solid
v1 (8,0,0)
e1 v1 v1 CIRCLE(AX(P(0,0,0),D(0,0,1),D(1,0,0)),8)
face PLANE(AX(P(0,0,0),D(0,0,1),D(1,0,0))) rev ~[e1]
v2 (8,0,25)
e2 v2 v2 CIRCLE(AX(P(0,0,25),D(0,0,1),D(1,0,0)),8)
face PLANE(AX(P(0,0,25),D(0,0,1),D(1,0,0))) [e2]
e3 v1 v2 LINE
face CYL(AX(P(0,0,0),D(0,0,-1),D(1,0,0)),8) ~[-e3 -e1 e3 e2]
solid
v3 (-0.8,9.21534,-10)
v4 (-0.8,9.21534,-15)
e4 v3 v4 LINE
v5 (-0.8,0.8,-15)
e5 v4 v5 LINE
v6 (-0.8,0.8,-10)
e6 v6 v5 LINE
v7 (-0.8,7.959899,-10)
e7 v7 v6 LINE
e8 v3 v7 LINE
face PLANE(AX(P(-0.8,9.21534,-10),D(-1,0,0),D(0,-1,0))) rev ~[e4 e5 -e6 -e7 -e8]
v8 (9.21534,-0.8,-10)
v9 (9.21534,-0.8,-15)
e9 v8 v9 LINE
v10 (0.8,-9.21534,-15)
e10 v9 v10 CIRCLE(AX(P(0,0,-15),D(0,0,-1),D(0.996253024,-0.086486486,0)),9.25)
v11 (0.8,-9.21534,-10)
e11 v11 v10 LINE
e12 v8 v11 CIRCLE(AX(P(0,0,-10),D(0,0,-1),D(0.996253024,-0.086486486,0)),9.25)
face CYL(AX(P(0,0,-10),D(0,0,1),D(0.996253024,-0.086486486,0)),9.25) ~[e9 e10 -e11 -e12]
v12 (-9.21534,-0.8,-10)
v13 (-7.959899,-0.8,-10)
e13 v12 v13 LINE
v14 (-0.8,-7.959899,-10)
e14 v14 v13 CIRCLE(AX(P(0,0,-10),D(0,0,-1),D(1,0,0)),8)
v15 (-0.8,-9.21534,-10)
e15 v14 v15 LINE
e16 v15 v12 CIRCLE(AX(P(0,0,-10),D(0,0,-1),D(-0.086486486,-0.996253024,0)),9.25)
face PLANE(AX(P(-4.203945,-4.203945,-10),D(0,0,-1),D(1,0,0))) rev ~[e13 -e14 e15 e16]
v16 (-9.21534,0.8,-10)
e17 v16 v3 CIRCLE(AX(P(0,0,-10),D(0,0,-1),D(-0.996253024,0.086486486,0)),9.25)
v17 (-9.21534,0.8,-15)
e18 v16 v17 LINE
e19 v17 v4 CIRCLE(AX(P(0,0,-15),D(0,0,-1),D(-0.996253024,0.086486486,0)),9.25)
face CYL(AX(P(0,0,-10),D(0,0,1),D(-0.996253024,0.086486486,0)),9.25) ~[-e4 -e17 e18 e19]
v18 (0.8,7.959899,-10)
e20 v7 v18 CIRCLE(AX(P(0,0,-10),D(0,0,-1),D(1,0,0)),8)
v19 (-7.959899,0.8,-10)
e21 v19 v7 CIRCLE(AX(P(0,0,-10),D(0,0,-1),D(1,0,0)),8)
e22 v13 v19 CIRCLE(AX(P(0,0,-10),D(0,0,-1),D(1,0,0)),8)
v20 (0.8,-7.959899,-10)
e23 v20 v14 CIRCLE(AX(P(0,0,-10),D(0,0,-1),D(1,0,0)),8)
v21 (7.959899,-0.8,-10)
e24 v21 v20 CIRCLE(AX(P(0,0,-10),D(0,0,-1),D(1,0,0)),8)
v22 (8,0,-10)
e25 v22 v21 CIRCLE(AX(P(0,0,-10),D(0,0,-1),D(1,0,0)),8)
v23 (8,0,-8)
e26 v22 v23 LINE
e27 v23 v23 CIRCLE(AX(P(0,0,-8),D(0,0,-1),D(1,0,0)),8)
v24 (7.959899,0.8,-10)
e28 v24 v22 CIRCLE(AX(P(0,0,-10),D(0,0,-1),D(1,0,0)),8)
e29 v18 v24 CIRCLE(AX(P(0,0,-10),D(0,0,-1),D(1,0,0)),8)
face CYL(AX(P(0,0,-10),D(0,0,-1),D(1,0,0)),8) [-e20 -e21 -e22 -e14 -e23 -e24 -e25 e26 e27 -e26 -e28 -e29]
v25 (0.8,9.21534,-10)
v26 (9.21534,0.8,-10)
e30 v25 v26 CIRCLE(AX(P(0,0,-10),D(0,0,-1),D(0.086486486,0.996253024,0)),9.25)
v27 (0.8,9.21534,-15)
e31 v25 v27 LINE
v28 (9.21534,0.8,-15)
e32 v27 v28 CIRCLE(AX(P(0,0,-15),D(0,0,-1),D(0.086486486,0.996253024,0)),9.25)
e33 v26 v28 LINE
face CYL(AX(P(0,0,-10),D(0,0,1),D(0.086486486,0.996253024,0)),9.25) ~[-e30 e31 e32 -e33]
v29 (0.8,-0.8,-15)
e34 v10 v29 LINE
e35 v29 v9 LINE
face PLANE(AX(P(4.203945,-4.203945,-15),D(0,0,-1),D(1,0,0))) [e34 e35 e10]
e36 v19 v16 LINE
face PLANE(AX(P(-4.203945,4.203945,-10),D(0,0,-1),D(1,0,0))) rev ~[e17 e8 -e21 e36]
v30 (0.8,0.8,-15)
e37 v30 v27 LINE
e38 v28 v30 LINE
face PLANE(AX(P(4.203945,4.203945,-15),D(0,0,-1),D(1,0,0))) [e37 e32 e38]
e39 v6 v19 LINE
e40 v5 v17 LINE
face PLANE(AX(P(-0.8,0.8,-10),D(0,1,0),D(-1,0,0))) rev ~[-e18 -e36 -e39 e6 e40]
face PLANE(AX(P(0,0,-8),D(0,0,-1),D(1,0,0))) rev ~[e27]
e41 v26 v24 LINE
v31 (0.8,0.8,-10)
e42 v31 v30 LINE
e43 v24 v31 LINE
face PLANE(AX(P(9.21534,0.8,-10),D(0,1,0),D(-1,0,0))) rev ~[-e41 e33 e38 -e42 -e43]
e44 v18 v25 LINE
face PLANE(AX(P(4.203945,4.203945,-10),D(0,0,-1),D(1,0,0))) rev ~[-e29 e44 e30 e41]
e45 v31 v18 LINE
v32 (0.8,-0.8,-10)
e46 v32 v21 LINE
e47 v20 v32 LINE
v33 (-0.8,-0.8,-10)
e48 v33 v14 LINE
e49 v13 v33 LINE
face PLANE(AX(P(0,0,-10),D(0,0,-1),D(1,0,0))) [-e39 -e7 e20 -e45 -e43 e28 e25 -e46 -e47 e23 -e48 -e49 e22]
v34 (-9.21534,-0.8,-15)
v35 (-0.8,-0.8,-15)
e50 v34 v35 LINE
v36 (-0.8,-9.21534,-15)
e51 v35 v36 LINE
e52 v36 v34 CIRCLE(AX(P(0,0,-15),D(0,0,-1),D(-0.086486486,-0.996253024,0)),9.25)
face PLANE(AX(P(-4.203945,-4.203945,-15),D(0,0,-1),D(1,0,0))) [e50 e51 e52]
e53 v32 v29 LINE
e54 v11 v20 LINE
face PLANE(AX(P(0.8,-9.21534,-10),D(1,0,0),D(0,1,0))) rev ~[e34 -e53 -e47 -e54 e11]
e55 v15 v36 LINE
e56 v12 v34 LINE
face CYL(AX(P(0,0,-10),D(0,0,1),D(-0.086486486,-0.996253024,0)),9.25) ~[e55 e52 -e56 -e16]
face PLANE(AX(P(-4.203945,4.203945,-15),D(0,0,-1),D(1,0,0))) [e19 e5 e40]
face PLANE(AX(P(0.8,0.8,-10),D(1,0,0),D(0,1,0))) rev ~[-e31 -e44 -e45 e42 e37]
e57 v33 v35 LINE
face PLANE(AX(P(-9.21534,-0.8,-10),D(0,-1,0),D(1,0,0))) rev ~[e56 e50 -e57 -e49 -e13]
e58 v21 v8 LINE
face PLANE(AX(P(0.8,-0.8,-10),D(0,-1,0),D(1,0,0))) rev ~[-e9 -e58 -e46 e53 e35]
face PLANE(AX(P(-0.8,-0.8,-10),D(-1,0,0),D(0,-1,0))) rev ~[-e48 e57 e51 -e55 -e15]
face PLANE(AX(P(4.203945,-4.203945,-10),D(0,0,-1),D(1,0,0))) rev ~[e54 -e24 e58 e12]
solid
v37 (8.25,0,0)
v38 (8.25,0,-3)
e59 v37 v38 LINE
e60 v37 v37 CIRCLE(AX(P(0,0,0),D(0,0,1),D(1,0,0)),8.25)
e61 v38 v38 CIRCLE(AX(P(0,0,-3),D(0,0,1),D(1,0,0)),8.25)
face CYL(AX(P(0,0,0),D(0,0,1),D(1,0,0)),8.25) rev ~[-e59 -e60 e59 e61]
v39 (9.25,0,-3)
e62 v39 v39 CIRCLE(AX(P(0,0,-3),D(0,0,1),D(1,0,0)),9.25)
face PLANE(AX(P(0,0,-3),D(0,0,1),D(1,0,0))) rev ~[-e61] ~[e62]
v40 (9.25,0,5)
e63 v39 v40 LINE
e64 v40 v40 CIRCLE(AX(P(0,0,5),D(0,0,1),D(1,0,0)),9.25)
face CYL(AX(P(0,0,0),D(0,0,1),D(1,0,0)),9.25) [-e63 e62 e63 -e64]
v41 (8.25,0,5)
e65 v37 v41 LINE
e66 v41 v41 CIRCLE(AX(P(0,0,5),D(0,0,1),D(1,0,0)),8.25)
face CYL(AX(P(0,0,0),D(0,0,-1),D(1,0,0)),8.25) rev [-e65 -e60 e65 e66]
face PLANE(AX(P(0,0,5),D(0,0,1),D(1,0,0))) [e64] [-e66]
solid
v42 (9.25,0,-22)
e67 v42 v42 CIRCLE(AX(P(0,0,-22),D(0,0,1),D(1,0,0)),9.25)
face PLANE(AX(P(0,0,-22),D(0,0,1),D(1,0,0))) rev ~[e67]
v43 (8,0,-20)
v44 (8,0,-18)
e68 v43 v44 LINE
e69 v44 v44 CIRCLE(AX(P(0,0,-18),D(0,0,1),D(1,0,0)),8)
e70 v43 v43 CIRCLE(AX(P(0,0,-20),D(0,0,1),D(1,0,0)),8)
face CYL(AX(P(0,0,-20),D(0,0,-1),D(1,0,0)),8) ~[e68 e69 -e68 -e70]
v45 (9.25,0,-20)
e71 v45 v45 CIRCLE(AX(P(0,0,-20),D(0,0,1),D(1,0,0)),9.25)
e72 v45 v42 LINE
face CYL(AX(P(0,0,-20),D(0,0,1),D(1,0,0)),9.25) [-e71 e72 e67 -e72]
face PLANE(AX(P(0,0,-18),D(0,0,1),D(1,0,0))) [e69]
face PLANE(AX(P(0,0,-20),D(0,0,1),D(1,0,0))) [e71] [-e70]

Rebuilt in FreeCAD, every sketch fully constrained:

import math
import FreeCAD as App
import Part
import Sketcher
Q = App.Units.Quantity

doc = App.newDocument("Part")
params = doc.addObject("Spreadsheet::Sheet", "Params")
for row, (alias, value) in enumerate([
    ("sketch1_diameter", "16 mm"),
    ("pad1_length", "25 mm"),
    ("sketch2_diameter", "18.5 mm"),
    ("sketch2_diameter2", "16.5 mm"),
    ("pad2_length", "5 mm"),
    ("pad2_length2", "3 mm"),
    ("sketch3_diameter", "16 mm"),
    ("pad3_length", "2 mm"),
    ("sketch4_radius", "9.25 mm"),
    ("pad4_length", "5 mm"),
    ("sketch5_diameter", "16 mm"),
    ("pad5_length", "2 mm"),
    ("sketch6_diameter", "18.5 mm"),
    ("pad6_length", "2 mm"),
], start=1):
    params.set(f"A{row}", alias)
    params.set(f"B{row}", "=" + value)
    params.setAlias(f"B{row}", alias)

body = doc.addObject("PartDesign::Body", "Body")

# Sketch on XY plane
sketch1 = body.newObject("Sketcher::SketchObject", "Sketch")
sketch1.AttachmentSupport = (doc.getObject("XY_Plane"), [""])
sketch1.MapMode = "FlatFace"
sketch1.addGeometry(Part.Circle(App.Vector(0, 0, 0), App.Vector(0, 0, 1), 8), False)
sketch1.addConstraint([
    Sketcher.Constraint("Coincident", 0, 3, -1, 1),
    Sketcher.Constraint("Diameter", 0, Q("16 mm")),
])
sketch1.setExpression("Constraints[1]", "Params.sketch1_diameter")
pad1 = body.newObject("PartDesign::Pad", "Pad")
pad1.Profile = sketch1
pad1.setExpression("Length", "Params.pad1_length")
body2 = doc.addObject("PartDesign::Body", "Body001")

# Sketch on XY plane
sketch2 = body2.newObject("Sketcher::SketchObject", "Sketch001")
sketch2.AttachmentSupport = (doc.getObject("XY_Plane001"), [""])
sketch2.MapMode = "FlatFace"
sketch2.addGeometry([
    Part.Circle(App.Vector(0, 0, 0), App.Vector(0, 0, 1), 9.25),
    Part.Circle(App.Vector(0, 0, 0), App.Vector(0, 0, 1), 8.25),
], False)
sketch2.addConstraint([
    Sketcher.Constraint("Coincident", 0, 3, -1, 1),
    Sketcher.Constraint("Coincident", 1, 3, -1, 1),
    Sketcher.Constraint("Diameter", 0, Q("18.5 mm")),
    Sketcher.Constraint("Diameter", 1, Q("16.5 mm")),
])
sketch2.setExpression("Constraints[2]", "Params.sketch2_diameter")
sketch2.setExpression("Constraints[3]", "Params.sketch2_diameter2")
pad2 = body2.newObject("PartDesign::Pad", "Pad001")
pad2.Profile = sketch2
pad2.Type = "TwoLengths"
pad2.setExpression("Length", "Params.pad2_length")
pad2.setExpression("Length2", "Params.pad2_length2")
body3 = doc.addObject("PartDesign::Body", "Body002")

# Sketch on XY plane
sketch3 = body3.newObject("Sketcher::SketchObject", "Sketch002")
sketch3.AttachmentSupport = (doc.getObject("XY_Plane002"), [""])
sketch3.MapMode = "FlatFace"
sketch3.AttachmentOffset = App.Placement(App.Vector(0, 0, -10), App.Rotation())
sketch3.addGeometry(Part.Circle(App.Vector(0, 0, 0), App.Vector(0, 0, 1), 8), False)
sketch3.addConstraint([
    Sketcher.Constraint("Coincident", 0, 3, -1, 1),
    Sketcher.Constraint("Diameter", 0, Q("16 mm")),
])
sketch3.setExpression("Constraints[1]", "Params.sketch3_diameter")
pad3 = body3.newObject("PartDesign::Pad", "Pad002")
pad3.Profile = sketch3
pad3.setExpression("Length", "Params.pad3_length")

# Sketch on XY plane
sketch4 = body3.newObject("Sketcher::SketchObject", "Sketch003")
sketch4.AttachmentSupport = (doc.getObject("XY_Plane002"), [""])
sketch4.MapMode = "FlatFace"
sketch4.AttachmentOffset = App.Placement(App.Vector(0, 0, -10), App.Rotation())
sketch4.addGeometry([
    Part.LineSegment(App.Vector(-0.8, -0.8, 0), App.Vector(-0.8, -9.21534, 0)),  # 0
    Part.ArcOfCircle(Part.Circle(App.Vector(0, 0, 0), App.Vector(0, 0, 1), 9.25), math.radians(-175.038491), math.radians(-94.961509)),  # 1
    Part.LineSegment(App.Vector(-9.21534, -0.8, 0), App.Vector(-0.8, -0.8, 0)),  # 2
    Part.LineSegment(App.Vector(0.8, -0.8, 0), App.Vector(9.21534, -0.8, 0)),  # 3
    Part.ArcOfCircle(Part.Circle(App.Vector(0, 0, 0), App.Vector(0, 0, 1), 9.25), math.radians(-85.038491), math.radians(-4.961509)),  # 4
    Part.LineSegment(App.Vector(0.8, -9.21534, 0), App.Vector(0.8, -0.8, 0)),  # 5
    Part.ArcOfCircle(Part.Circle(App.Vector(0, 0, 0), App.Vector(0, 0, 1), 9.25), math.radians(94.961509), math.radians(175.038491)),  # 6
    Part.LineSegment(App.Vector(-0.8, 9.21534, 0), App.Vector(-0.8, 0.8, 0)),  # 7
    Part.LineSegment(App.Vector(-0.8, 0.8, 0), App.Vector(-9.21534, 0.8, 0)),  # 8
    Part.ArcOfCircle(Part.Circle(App.Vector(0, 0, 0), App.Vector(0, 0, 1), 9.25), math.radians(4.961509), math.radians(85.038491)),  # 9
    Part.LineSegment(App.Vector(9.21534, 0.8, 0), App.Vector(0.8, 0.8, 0)),  # 10
    Part.LineSegment(App.Vector(0.8, 0.8, 0), App.Vector(0.8, 9.21534, 0)),  # 11
], False)
sketch4.addConstraint([
    Sketcher.Constraint("Coincident", 0, 2, 1, 2),
    Sketcher.Constraint("Coincident", 1, 1, 2, 1),
    Sketcher.Constraint("Coincident", 2, 2, 0, 1),
    Sketcher.Constraint("Coincident", 3, 2, 4, 2),
    Sketcher.Constraint("Coincident", 4, 1, 5, 1),
    Sketcher.Constraint("Coincident", 5, 2, 3, 1),
    Sketcher.Constraint("Coincident", 6, 1, 7, 1),
    Sketcher.Constraint("Coincident", 7, 2, 8, 1),
    Sketcher.Constraint("Coincident", 8, 2, 6, 2),
    Sketcher.Constraint("Coincident", 9, 1, 10, 1),
    Sketcher.Constraint("Coincident", 10, 2, 11, 1),
    Sketcher.Constraint("Coincident", 11, 2, 9, 2),
    Sketcher.Constraint("Vertical", 0),
    Sketcher.Constraint("Horizontal", 2),
    Sketcher.Constraint("Horizontal", 3),
    Sketcher.Constraint("Vertical", 5),
    Sketcher.Constraint("Vertical", 7),
    Sketcher.Constraint("Horizontal", 8),
    Sketcher.Constraint("Horizontal", 10),
    Sketcher.Constraint("Vertical", 11),
    Sketcher.Constraint("Coincident", 1, 3, -1, 1),
    Sketcher.Constraint("Coincident", 4, 3, -1, 1),
    Sketcher.Constraint("Coincident", 6, 3, -1, 1),
    Sketcher.Constraint("Coincident", 9, 3, -1, 1),
    Sketcher.Constraint("Equal", 1, 4),
    Sketcher.Constraint("Equal", 4, 6),
    Sketcher.Constraint("Equal", 6, 9),
    Sketcher.Constraint("Symmetric", 5, 2, 7, 2, -1, 1),
    Sketcher.Constraint("Symmetric", 2, 2, 10, 2, -1, 1),
    Sketcher.Constraint("Symmetric", 2, 2, 5, 2, -2),
    Sketcher.Constraint("Equal", 10, 0),
    Sketcher.Constraint("Radius", 1, Q("9.25 mm")),
    Sketcher.Constraint("DistanceX", 0, 2, -1, 1, Q("0.8 mm")),
])
sketch4.setExpression("Constraints[31]", "Params.sketch4_radius")
pad4 = body3.newObject("PartDesign::Pad", "Pad003")
pad4.Profile = sketch4
pad4.setExpression("Length", "Params.pad4_length")
pad4.Reversed = True
body4 = doc.addObject("PartDesign::Body", "Body003")

# Sketch on XY plane
sketch5 = body4.newObject("Sketcher::SketchObject", "Sketch004")
sketch5.AttachmentSupport = (doc.getObject("XY_Plane003"), [""])
sketch5.MapMode = "FlatFace"
sketch5.AttachmentOffset = App.Placement(App.Vector(0, 0, -20), App.Rotation())
sketch5.addGeometry(Part.Circle(App.Vector(0, 0, 0), App.Vector(0, 0, 1), 8), False)
sketch5.addConstraint([
    Sketcher.Constraint("Coincident", 0, 3, -1, 1),
    Sketcher.Constraint("Diameter", 0, Q("16 mm")),
])
sketch5.setExpression("Constraints[1]", "Params.sketch5_diameter")
pad5 = body4.newObject("PartDesign::Pad", "Pad004")
pad5.Profile = sketch5
pad5.setExpression("Length", "Params.pad5_length")

# Sketch on XY plane
sketch6 = body4.newObject("Sketcher::SketchObject", "Sketch005")
sketch6.AttachmentSupport = (doc.getObject("XY_Plane003"), [""])
sketch6.MapMode = "FlatFace"
sketch6.AttachmentOffset = App.Placement(App.Vector(0, 0, -20), App.Rotation())
sketch6.addGeometry(Part.Circle(App.Vector(0, 0, 0), App.Vector(0, 0, 1), 9.25), False)
sketch6.addConstraint([
    Sketcher.Constraint("Coincident", 0, 3, -1, 1),
    Sketcher.Constraint("Diameter", 0, Q("18.5 mm")),
])
sketch6.setExpression("Constraints[1]", "Params.sketch6_diameter")
pad6 = body4.newObject("PartDesign::Pad", "Pad005")
pad6.Profile = sketch6
pad6.setExpression("Length", "Params.pad6_length")
pad6.Reversed = True

doc.recompute()
